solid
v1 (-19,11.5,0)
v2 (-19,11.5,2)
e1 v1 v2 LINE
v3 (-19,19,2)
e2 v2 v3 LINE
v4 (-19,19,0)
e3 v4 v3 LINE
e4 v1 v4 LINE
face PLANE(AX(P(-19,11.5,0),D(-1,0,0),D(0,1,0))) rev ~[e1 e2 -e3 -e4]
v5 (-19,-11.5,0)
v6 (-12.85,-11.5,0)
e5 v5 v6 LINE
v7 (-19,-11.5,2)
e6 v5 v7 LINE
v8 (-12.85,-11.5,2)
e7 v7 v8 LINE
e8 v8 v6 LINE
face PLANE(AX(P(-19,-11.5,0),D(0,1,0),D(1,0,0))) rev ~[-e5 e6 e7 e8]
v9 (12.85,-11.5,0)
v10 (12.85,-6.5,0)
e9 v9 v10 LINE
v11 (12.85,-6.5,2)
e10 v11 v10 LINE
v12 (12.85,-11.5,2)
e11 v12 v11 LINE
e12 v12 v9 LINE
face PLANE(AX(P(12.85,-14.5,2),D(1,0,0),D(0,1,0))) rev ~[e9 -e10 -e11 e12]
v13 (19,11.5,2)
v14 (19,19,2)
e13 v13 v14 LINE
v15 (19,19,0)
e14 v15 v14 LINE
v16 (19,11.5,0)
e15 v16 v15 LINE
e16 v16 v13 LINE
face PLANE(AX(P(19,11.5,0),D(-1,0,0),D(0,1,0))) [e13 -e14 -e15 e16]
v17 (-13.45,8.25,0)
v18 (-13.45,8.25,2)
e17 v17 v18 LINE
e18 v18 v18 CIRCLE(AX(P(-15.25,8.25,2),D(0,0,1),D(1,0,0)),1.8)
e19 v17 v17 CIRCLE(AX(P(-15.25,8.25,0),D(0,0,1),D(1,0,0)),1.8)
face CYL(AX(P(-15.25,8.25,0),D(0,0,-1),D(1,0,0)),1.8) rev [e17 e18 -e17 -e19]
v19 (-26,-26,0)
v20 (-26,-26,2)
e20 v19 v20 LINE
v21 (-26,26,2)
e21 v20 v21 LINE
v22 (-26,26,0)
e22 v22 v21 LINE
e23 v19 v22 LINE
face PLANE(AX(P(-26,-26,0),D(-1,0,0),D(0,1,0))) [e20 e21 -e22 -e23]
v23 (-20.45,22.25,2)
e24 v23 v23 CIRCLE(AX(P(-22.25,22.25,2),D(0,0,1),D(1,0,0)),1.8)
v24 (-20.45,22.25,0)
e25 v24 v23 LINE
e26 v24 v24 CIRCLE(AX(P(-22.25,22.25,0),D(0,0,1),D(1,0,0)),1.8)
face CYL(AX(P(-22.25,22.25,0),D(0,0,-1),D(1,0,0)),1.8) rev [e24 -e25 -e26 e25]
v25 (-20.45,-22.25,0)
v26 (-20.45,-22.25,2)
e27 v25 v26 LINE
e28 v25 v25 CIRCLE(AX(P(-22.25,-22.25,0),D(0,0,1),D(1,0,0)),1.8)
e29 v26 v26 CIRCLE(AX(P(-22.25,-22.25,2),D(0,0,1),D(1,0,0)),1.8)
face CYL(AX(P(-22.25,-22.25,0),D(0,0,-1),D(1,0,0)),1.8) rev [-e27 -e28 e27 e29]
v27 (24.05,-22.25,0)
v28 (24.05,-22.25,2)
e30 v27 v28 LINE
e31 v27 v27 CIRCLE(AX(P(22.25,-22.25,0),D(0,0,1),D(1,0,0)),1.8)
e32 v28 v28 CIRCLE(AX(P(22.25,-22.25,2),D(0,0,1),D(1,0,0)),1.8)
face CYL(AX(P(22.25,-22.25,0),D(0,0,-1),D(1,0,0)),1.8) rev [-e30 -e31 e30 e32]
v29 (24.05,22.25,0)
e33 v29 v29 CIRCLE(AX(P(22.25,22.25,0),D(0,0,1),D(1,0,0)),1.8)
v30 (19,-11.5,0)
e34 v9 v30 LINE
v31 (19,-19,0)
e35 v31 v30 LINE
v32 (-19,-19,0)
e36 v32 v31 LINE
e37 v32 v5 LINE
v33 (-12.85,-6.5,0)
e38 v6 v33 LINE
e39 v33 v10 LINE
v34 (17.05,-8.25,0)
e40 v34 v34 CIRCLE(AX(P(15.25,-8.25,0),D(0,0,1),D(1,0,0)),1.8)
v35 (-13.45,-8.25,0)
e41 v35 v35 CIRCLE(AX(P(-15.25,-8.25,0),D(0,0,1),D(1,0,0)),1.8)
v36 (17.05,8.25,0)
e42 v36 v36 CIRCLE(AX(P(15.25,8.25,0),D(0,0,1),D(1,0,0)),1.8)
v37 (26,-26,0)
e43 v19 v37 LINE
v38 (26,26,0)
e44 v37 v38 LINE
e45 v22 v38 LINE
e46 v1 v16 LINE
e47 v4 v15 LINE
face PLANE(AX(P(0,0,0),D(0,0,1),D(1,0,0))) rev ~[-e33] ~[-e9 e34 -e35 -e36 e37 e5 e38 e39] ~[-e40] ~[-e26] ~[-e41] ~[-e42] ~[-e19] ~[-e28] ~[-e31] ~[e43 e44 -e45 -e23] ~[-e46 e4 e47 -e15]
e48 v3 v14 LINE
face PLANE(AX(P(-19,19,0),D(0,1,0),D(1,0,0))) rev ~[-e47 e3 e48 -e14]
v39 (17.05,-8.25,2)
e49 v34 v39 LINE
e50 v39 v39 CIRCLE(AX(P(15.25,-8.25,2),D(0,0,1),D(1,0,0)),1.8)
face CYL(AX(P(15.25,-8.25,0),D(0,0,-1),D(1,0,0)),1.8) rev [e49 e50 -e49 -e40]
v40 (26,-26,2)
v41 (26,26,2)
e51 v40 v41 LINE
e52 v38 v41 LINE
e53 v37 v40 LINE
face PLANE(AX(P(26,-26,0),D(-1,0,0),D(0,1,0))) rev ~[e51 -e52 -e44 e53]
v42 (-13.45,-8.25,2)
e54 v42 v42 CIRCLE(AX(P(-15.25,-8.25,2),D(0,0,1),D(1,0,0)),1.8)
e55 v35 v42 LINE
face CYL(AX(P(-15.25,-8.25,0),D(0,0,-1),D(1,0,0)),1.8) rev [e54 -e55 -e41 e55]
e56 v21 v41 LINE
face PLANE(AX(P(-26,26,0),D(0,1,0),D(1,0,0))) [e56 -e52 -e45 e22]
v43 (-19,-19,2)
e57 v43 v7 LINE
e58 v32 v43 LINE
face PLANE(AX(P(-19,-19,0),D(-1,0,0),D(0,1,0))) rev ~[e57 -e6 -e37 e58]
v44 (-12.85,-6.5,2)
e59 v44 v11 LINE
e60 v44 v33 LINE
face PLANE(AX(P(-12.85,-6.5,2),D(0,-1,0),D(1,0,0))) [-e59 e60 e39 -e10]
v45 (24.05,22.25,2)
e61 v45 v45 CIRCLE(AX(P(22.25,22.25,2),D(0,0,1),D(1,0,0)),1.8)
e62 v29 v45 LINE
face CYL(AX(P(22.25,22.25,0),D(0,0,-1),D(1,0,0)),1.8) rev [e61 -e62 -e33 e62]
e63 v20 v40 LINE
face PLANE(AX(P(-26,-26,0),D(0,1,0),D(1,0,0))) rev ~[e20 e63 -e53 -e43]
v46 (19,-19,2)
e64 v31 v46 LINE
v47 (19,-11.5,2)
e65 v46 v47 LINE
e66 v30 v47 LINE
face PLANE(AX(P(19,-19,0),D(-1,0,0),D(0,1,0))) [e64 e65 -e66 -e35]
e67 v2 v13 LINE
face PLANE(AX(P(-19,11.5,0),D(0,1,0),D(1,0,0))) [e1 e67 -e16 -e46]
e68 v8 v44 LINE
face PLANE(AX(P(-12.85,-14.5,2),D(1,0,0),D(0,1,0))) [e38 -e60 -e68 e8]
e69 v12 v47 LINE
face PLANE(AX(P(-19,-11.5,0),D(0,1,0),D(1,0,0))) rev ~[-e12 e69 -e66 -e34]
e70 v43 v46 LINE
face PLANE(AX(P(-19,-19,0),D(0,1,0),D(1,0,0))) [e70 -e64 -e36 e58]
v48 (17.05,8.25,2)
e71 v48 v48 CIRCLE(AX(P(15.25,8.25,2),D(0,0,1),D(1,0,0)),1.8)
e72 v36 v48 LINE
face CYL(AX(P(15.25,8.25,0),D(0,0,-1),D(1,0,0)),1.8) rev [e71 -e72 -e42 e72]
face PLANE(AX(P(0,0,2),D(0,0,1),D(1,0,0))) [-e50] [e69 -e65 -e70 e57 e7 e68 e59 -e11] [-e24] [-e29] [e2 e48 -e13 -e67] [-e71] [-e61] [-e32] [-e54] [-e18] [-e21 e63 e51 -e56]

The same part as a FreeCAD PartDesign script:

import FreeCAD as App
import Part
import Sketcher
from FreeCAD import Vector


def add_polygon(sketch, points):
    """Adds a closed chain of lines whose ends are joined by coincident constraints."""
    first, n = sketch.GeometryCount, len(points)
    for a, b in zip(points, points[1:] + points[:1]):
        sketch.addGeometry(Part.LineSegment(App.Vector(*a, 0), App.Vector(*b, 0)), False)
    for i in range(n):
        sketch.addConstraint(Sketcher.Constraint("Coincident", first + i, 2, first + (i + 1) % n, 1))

doc = App.newDocument("Part")
body = doc.addObject("PartDesign::Body", "Body")

sketch1 = body.newObject("Sketcher::SketchObject", "Sketch")
sketch1.AttachmentSupport = (doc.getObject("XY_Plane"), [""])
sketch1.MapMode = "FlatFace"
add_polygon(sketch1, [(-26, 26), (-26, -26), (26, -26), (26, 26)])
sketch1.addGeometry(Part.Circle(Vector(-22.2, -22.2, 0), Vector(0, 0, 1), 1.8), False)
add_polygon(sketch1, [(19, -19), (-19, -19), (-19, -11.5), (19, -11.5)])
sketch1.addGeometry(Part.Circle(Vector(-15.2, -8.2, 0), Vector(0, 0, 1), 1.8), False)
sketch1.addGeometry(Part.Circle(Vector(22.2, -22.2, 0), Vector(0, 0, 1), 1.8), False)
sketch1.addGeometry(Part.Circle(Vector(15.2, -8.2, 0), Vector(0, 0, 1), 1.8), False)
sketch1.addGeometry(Part.Circle(Vector(-15.2, 8.2, 0), Vector(0, 0, 1), 1.8), False)
sketch1.addGeometry(Part.Circle(Vector(-22.2, 22.2, 0), Vector(0, 0, 1), 1.8), False)
add_polygon(sketch1, [(19, 11.5), (-19, 11.5), (-19, 19), (19, 19)])
sketch1.addGeometry(Part.Circle(Vector(15.2, 8.2, 0), Vector(0, 0, 1), 1.8), False)
sketch1.addGeometry(Part.Circle(Vector(22.2, 22.2, 0), Vector(0, 0, 1), 1.8), False)
sketch1.addConstraint([
    Sketcher.Constraint("Vertical", 0),
    Sketcher.Constraint("Horizontal", 1),
    Sketcher.Constraint("Vertical", 2),
    Sketcher.Constraint("Horizontal", 3),
    Sketcher.Constraint("Horizontal", 5),
    Sketcher.Constraint("Vertical", 6),
    Sketcher.Constraint("Horizontal", 7),
    Sketcher.Constraint("Vertical", 8),
    Sketcher.Constraint("Horizontal", 14),
    Sketcher.Constraint("Vertical", 15),
    Sketcher.Constraint("Horizontal", 16),
    Sketcher.Constraint("Vertical", 17),
    Sketcher.Constraint("Equal", 4, 9),
    Sketcher.Constraint("Equal", 9, 10),
    Sketcher.Constraint("Equal", 10, 11),
    Sketcher.Constraint("Equal", 11, 12),
    Sketcher.Constraint("Equal", 12, 13),
    Sketcher.Constraint("Equal", 13, 18),
    Sketcher.Constraint("Equal", 18, 19),
    Sketcher.Constraint("Symmetric", 11, 3, 12, 3, -1, 1),
    Sketcher.Constraint("Symmetric", 10, 3, 13, 3, -1, 1),
    Sketcher.Constraint("Symmetric", 9, 3, 18, 3, -1, 1),
    Sketcher.Constraint("Symmetric", 4, 3, 19, 3, -1, 1),
    Sketcher.Constraint("Symmetric", 0, 2, 2, 2, -1, 1),
    Sketcher.Constraint("Symmetric", 7, 2, 14, 2, -1, 1),
    Sketcher.Constraint("Symmetric", 5, 2, 16, 2, -1, 1),
    Sketcher.Constraint("Symmetric", 4, 3, 10, 3, -2),
    Sketcher.Constraint("Symmetric", 9, 3, 11, 3, -2),
    Sketcher.Constraint("Vertical", 6, 2, 14, 2),
    Sketcher.Constraint("Equal", 3, 0),
    Sketcher.Constraint("Diameter", 4, 3.6),
    Sketcher.Constraint("DistanceX", 1, 1, 1, 2, 52.0),
    Sketcher.Constraint("DistanceX", 5, 2, 5, 1, 38.0),
    Sketcher.Constraint("DistanceY", 6, 1, 6, 2, 7.5),
    Sketcher.Constraint("DistanceY", 5, 2, -1, 1, 19.0),
    Sketcher.Constraint("DistanceX", 4, 3, 9, 3, 7.0),
    Sketcher.Constraint("DistanceY", 4, 3, 9, 3, 14.0),
    Sketcher.Constraint("DistanceX", 9, 3, 10, 3, 37.5),
    Sketcher.Constraint("DistanceY", 9, 3, 12, 3, 16.5),
])
pad1 = body.newObject("PartDesign::Pad", "Pad")
pad1.Profile = sketch1
pad1.Length = 2

sketch2 = body.newObject("Sketcher::SketchObject", "Sketch001")
sketch2.AttachmentSupport = (doc.getObject("XY_Plane"), [""])
sketch2.MapMode = "FlatFace"
sketch2.AttachmentOffset = App.Placement(Vector(0, 0, 2), App.Rotation())
add_polygon(sketch2, [(-13, -6), (-13, -14), (13, -14), (13, -6)])
sketch2.addConstraint([
    Sketcher.Constraint("Vertical", 0),
    Sketcher.Constraint("Horizontal", 1),
    Sketcher.Constraint("Vertical", 2),
    Sketcher.Constraint("Horizontal", 3),
    Sketcher.Constraint("DistanceY", 0, 2, 0, 1, 8.0),
    Sketcher.Constraint("DistanceX", 1, 1, 1, 2, 25.7),
    Sketcher.Constraint("DistanceY", 0, 2, -1, 1, 14.5),
    Sketcher.Constraint("DistanceX", 0, 2, -1, 1, 12.85),
])
pocket1 = body.newObject("PartDesign::Pocket", "Pocket")
pocket1.Profile = sketch2
pocket1.Length = 5

doc.recompute()
